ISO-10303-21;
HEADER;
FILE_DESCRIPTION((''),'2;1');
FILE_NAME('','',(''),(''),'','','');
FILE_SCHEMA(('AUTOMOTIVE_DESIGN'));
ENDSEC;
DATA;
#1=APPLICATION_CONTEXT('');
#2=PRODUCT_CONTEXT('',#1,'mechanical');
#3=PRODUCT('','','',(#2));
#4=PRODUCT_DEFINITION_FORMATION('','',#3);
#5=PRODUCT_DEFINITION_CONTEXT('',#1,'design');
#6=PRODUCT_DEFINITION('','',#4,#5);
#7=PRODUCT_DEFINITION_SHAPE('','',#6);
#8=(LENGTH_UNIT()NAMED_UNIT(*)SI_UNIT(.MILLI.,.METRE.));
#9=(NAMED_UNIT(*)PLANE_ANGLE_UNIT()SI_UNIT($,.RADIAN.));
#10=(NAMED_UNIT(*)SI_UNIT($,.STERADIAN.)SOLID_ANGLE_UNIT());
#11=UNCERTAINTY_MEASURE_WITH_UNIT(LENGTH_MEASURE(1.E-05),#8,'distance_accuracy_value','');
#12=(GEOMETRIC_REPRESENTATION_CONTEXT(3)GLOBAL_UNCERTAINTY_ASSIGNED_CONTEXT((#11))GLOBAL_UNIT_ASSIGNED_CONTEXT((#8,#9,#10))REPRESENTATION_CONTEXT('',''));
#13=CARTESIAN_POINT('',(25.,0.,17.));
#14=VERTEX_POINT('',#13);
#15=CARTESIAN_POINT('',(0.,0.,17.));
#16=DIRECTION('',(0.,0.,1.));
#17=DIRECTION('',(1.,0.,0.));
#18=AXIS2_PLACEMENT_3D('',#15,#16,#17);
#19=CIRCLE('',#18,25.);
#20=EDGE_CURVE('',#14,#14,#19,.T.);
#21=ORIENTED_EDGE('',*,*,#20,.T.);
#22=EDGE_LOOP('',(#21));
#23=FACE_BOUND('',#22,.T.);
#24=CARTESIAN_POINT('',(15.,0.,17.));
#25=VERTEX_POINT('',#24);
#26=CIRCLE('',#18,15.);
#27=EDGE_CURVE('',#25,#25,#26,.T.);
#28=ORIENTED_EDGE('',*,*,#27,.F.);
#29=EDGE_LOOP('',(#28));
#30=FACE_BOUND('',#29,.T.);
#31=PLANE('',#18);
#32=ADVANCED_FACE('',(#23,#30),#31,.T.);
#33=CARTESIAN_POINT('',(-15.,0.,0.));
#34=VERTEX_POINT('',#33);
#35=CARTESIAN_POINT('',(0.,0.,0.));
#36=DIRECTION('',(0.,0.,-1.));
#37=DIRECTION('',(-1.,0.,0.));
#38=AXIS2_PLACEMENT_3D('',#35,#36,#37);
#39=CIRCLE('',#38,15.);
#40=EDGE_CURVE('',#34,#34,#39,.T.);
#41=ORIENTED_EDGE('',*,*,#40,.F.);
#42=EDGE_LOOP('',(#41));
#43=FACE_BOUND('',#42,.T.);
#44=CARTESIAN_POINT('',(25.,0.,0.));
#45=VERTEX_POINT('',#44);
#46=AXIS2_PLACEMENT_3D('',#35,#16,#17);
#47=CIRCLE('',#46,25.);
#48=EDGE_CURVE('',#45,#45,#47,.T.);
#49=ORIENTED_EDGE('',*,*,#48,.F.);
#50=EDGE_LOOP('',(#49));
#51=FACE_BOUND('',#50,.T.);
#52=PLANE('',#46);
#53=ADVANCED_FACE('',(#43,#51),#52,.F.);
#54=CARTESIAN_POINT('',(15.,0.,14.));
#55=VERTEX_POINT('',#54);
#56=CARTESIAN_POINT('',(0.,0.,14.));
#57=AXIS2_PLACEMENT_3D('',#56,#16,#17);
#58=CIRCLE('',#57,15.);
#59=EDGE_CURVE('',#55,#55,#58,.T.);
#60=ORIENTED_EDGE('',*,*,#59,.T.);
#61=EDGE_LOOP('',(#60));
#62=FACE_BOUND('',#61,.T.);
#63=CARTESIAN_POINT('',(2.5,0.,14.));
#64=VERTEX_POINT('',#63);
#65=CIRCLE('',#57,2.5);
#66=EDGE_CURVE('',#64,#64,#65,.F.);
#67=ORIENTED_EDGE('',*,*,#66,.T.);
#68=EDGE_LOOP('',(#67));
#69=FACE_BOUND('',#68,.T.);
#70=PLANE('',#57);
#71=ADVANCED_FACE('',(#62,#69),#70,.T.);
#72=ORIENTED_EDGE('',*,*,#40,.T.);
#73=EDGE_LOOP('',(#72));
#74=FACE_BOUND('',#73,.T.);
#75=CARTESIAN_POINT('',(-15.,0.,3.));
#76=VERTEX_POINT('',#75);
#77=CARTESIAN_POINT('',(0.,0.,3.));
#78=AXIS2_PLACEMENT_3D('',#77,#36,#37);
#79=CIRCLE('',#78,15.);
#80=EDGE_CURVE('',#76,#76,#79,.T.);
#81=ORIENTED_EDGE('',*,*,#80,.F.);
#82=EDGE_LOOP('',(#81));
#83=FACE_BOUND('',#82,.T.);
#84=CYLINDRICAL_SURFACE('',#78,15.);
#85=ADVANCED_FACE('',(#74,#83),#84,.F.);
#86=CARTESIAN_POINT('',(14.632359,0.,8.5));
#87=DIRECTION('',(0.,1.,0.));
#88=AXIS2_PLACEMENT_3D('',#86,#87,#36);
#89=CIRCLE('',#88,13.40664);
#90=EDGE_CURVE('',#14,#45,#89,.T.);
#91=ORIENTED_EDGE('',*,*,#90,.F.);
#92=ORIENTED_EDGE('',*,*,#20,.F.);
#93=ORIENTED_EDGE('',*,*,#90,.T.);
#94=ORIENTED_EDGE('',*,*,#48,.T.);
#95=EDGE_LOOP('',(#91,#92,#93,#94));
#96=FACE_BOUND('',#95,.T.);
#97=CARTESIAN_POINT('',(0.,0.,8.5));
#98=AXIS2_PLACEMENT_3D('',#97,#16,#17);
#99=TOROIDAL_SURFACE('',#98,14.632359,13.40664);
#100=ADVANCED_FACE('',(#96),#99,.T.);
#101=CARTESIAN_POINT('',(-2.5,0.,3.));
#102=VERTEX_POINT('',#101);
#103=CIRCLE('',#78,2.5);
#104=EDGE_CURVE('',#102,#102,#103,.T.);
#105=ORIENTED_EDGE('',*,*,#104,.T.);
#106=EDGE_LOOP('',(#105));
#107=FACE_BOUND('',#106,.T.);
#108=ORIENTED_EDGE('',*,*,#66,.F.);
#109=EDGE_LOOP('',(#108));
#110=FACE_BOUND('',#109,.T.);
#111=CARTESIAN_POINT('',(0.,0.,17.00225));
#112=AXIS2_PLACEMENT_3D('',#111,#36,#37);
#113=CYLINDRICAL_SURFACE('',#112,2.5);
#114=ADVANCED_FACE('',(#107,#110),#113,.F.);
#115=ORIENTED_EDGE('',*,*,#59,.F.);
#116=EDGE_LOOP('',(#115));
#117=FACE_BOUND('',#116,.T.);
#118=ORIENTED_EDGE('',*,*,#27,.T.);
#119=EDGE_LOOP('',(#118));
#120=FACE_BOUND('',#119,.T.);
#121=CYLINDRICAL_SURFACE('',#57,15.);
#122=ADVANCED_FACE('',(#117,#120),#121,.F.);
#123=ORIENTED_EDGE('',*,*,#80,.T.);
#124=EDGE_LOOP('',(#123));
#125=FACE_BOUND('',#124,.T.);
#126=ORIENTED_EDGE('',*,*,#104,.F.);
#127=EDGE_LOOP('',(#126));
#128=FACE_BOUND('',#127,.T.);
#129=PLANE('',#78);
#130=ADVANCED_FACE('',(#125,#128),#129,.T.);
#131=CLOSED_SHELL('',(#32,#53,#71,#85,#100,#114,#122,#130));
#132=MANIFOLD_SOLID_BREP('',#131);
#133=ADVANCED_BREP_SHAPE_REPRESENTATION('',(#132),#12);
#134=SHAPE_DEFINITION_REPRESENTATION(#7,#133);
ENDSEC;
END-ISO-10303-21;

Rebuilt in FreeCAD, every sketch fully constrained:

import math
import FreeCAD as App
import Part
import Sketcher
Q = App.Units.Quantity

doc = App.newDocument("Part")
body = doc.addObject("PartDesign::Body", "Body")

sketch1 = doc.addObject("Sketcher::SketchObject", "Sketch")
body.addObject(sketch1)
sketch1.AttachmentSupport = (doc.XY_Plane, [""])
sketch1.MapMode = "FlatFace"
sketch1.addGeometry(Part.Circle(App.Vector(0, 0, 0), App.Vector(0, 0, 1), 25), False)
sketch1.addConstraint([
    Sketcher.Constraint("Coincident", 0, 3, -1, 1),
    Sketcher.Constraint("Diameter", 0, Q("50 mm")),
])
pad1 = doc.addObject("PartDesign::Pad", "Pad")
body.addObject(pad1)
pad1.Profile = sketch1
pad1.Length = 17

sketch2 = doc.addObject("Sketcher::SketchObject", "Sketch001")
body.addObject(sketch2)
sketch2.AttachmentSupport = (doc.XZ_Plane, [""])
sketch2.MapMode = "FlatFace"
sketch2.addGeometry([
    Part.LineSegment(App.Vector(25, 0, 0), App.Vector(25, 17, 0)),
    Part.ArcOfCircle(Part.Circle(App.Vector(15, 8, 0), App.Vector(0, 0, 1), 13), math.radians(-39), math.radians(39)),
], False)
sketch2.addConstraint([
    Sketcher.Constraint("Coincident", 0, 1, 1, 1),
    Sketcher.Constraint("Coincident", 1, 2, 0, 2),
    Sketcher.Constraint("Vertical", 0),
    Sketcher.Constraint("PointOnObject", 0, 1, -1),
    Sketcher.Constraint("DistanceY", 0, 1, 0, 2, Q("17 mm")),
    Sketcher.Constraint("DistanceX", -1, 1, 0, 1, Q("25 mm")),
    Sketcher.Constraint("Radius", 1, Q("13.40664 mm")),
])

sketch3 = doc.addObject("Sketcher::SketchObject", "Sketch002")
body.addObject(sketch3)
sketch3.AttachmentSupport = (doc.XY_Plane, [""])
sketch3.MapMode = "FlatFace"
sketch3.AttachmentOffset = App.Placement(App.Vector(0, 0, 17), App.Rotation())
sketch3.addGeometry([
    Part.ArcOfCircle(Part.Circle(App.Vector(0, 0, 0), App.Vector(0, 0, 1), 25), math.radians(0), math.radians(90)),
    Part.ArcOfCircle(Part.Circle(App.Vector(0, 0, 0), App.Vector(0, 0, 1), 25), math.radians(90), math.radians(180)),
    Part.ArcOfCircle(Part.Circle(App.Vector(0, 0, 0), App.Vector(0, 0, 1), 25), math.radians(180), math.radians(270)),
    Part.ArcOfCircle(Part.Circle(App.Vector(0, 0, 0), App.Vector(0, 0, 1), 25), math.radians(-90), math.radians(0)),
], False)
sketch3.addConstraint([
    Sketcher.Constraint("Tangent", 0, 2, 1, 1),
    Sketcher.Constraint("Tangent", 1, 2, 2, 1),
    Sketcher.Constraint("Tangent", 2, 2, 3, 1),
    Sketcher.Constraint("Tangent", 3, 2, 0, 1),
    Sketcher.Constraint("Coincident", 0, 3, -1, 1),
    Sketcher.Constraint("Equal", 0, 1),
    Sketcher.Constraint("PointOnObject", 0, 2, -2),
    Sketcher.Constraint("PointOnObject", 1, 2, -1),
    Sketcher.Constraint("PointOnObject", 2, 2, -2),
    Sketcher.Constraint("PointOnObject", 3, 2, -1),
    Sketcher.Constraint("Radius", 0, Q("25 mm")),
])
doc.recompute()

additivepipe = doc.addObject("PartDesign::AdditivePipe", "AdditivePipe")
body.addObject(additivepipe)
additivepipe.Profile = sketch2
additivepipe.Spine = (sketch3, ["Edge1", "Edge2", "Edge3", "Edge4"])

sketch4 = doc.addObject("Sketcher::SketchObject", "Sketch003")
body.addObject(sketch4)
sketch4.AttachmentSupport = (doc.XY_Plane, [""])
sketch4.MapMode = "FlatFace"
sketch4.addGeometry(Part.Circle(App.Vector(0, 0, 0), App.Vector(0, 0, 1), 15), False)
sketch4.addConstraint([
    Sketcher.Constraint("Coincident", 0, 3, -1, 1),
    Sketcher.Constraint("Diameter", 0, Q("30 mm")),
])
pocket1 = doc.addObject("PartDesign::Pocket", "Pocket")
body.addObject(pocket1)
pocket1.Profile = sketch4
pocket1.Length = 3
pocket1.Reversed = True

sketch5 = doc.addObject("Sketcher::SketchObject", "Sketch004")
body.addObject(sketch5)
sketch5.AttachmentSupport = (doc.XY_Plane, [""])
sketch5.MapMode = "FlatFace"
sketch5.AttachmentOffset = App.Placement(App.Vector(0, 0, 14), App.Rotation())
sketch5.addGeometry(Part.Circle(App.Vector(0, 0, 0), App.Vector(0, 0, 1), 15), False)
sketch5.addConstraint([
    Sketcher.Constraint("Coincident", 0, 3, -1, 1),
    Sketcher.Constraint("Diameter", 0, Q("30 mm")),
])
pocket2 = doc.addObject("PartDesign::Pocket", "Pocket001")
body.addObject(pocket2)
pocket2.Profile = sketch5
pocket2.Length = 3
pocket2.Reversed = True

sketch6 = doc.addObject("Sketcher::SketchObject", "Sketch005")
body.addObject(sketch6)
sketch6.AttachmentSupport = (doc.XY_Plane, [""])
sketch6.MapMode = "FlatFace"
sketch6.AttachmentOffset = App.Placement(App.Vector(0, 0, 3), App.Rotation())
sketch6.addGeometry(Part.Circle(App.Vector(0, 0, 0), App.Vector(0, 0, 1), 2.5), False)
sketch6.addConstraint([
    Sketcher.Constraint("Coincident", 0, 3, -1, 1),
    Sketcher.Constraint("Diameter", 0, Q("5 mm")),
])
pocket3 = doc.addObject("PartDesign::Pocket", "Pocket002")
body.addObject(pocket3)
pocket3.Profile = sketch6
pocket3.Type = "UpToFirst"
pocket3.Reversed = True

doc.recompute()
